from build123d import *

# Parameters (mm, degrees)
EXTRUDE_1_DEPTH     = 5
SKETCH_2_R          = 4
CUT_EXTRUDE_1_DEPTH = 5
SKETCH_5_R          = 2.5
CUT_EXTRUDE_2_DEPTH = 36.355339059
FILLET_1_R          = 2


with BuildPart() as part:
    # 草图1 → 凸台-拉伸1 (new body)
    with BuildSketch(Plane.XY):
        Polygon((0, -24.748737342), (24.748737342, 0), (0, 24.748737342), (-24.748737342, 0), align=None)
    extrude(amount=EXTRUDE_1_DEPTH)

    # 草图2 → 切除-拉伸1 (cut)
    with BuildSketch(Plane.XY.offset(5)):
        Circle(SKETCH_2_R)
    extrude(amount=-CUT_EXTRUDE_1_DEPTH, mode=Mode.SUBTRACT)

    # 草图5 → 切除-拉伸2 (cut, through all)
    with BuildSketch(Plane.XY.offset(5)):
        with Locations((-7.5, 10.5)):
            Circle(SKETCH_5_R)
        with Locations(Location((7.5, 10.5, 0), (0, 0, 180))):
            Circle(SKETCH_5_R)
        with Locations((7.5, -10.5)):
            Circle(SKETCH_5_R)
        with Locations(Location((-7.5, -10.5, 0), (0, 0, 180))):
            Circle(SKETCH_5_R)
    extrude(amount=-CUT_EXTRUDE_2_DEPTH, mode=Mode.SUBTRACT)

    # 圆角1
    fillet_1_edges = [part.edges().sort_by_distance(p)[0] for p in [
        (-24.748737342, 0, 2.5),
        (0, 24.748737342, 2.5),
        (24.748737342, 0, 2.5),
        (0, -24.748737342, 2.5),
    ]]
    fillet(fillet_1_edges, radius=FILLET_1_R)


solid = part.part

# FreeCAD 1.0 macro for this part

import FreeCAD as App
import Part
import Sketcher

V = App.Vector


def edges_at(feature, points):
    """Names of the edges that pass closest to the given points."""
    edges = feature.Shape.Edges
    near = lambda p: min(range(len(edges)), key=lambda i: edges[i].distToShape(Part.Vertex(*p))[0])
    return sorted({f"Edge{near(p) + 1}" for p in points})


def add_polygon(sketch, points):
    """Adds a closed chain of lines whose ends are joined by coincident constraints."""
    first, n = sketch.GeometryCount, len(points)
    for a, b in zip(points, points[1:] + points[:1]):
        sketch.addGeometry(Part.LineSegment(App.Vector(*a, 0), App.Vector(*b, 0)), False)
    for i in range(n):
        sketch.addConstraint(Sketcher.Constraint("Coincident", first + i, 2, first + (i + 1) % n, 1))

doc = App.newDocument("Part")
body = doc.addObject("PartDesign::Body", "Body")

# Sketch on XY plane
sketch1 = doc.addObject("Sketcher::SketchObject", "Sketch")
body.addObject(sketch1)
sketch1.AttachmentSupport = (doc.XY_Plane, [""])
sketch1.MapMode = "FlatFace"
add_polygon(sketch1, [(0, -25), (25, 0), (0, 25), (-25, 0)])  # lines 0-3
sketch1.addConstraint([
    Sketcher.Constraint("Symmetric", 0, 2, 2, 2, -1, 1),
    Sketcher.Constraint("Symmetric", 1, 2, 3, 2, -1, 1),
    Sketcher.Constraint("PointOnObject", 0, 2, -1),
    Sketcher.Constraint("PointOnObject", 1, 2, -2),
    Sketcher.Constraint("Perpendicular", 0, 1),
    Sketcher.Constraint("Distance", 0, 35.0),
])
pad1 = doc.addObject("PartDesign::Pad", "Pad")
body.addObject(pad1)
pad1.Profile = sketch1
pad1.Length = 5

# Sketch on XY plane
sketch2 = doc.addObject("Sketcher::SketchObject", "Sketch001")
body.addObject(sketch2)
sketch2.AttachmentSupport = (doc.XY_Plane, [""])
sketch2.MapMode = "FlatFace"
sketch2.AttachmentOffset = App.Placement(V(0, 0, 5), App.Rotation())
sketch2.addGeometry(Part.Circle(V(0, 0, 0), V(0, 0, 1), 4), False)
sketch2.addConstraint([
    Sketcher.Constraint("Coincident", 0, 3, -1, 1),
    Sketcher.Constraint("Diameter", 0, 8.0),
])
pocket1 = doc.addObject("PartDesign::Pocket", "Pocket")
body.addObject(pocket1)
pocket1.Profile = sketch2
pocket1.Length = 5

# Sketch on XY plane
sketch3 = doc.addObject("Sketcher::SketchObject", "Sketch002")
body.addObject(sketch3)
sketch3.AttachmentSupport = (doc.XY_Plane, [""])
sketch3.MapMode = "FlatFace"
sketch3.AttachmentOffset = App.Placement(V(0, 0, 5), App.Rotation())
sketch3.addGeometry([
    Part.Circle(V(-7.5, 10.5, 0), V(0, 0, 1), 2.5),
    Part.Circle(V(7.5, 10.5, 0), V(0, 0, 1), 2.5),
    Part.Circle(V(7.5, -10.5, 0), V(0, 0, 1), 2.5),
    Part.Circle(V(-7.5, -10.5, 0), V(0, 0, 1), 2.5),
], False)
sketch3.addConstraint([
    Sketcher.Constraint("Equal", 0, 1),
    Sketcher.Constraint("Equal", 1, 2),
    Sketcher.Constraint("Equal", 2, 3),
    Sketcher.Constraint("Symmetric", 0, 3, 2, 3, -1, 1),
    Sketcher.Constraint("Symmetric", 1, 3, 3, 3, -1, 1),
    Sketcher.Constraint("Symmetric", 0, 3, 1, 3, -2),
    Sketcher.Constraint("Diameter", 0, 5.0),
    Sketcher.Constraint("DistanceX", 0, 3, 1, 3, 15.0),
    Sketcher.Constraint("DistanceY", 2, 3, 1, 3, 21.0),
])
pocket2 = doc.addObject("PartDesign::Pocket", "Pocket001")
body.addObject(pocket2)
pocket2.Profile = sketch3
pocket2.Type = "ThroughAll"
doc.recompute()

fillet = doc.addObject("PartDesign::Fillet", "Fillet")
body.addObject(fillet)
fillet.Base = (pocket2, edges_at(pocket2, [
    (-24.749, 0, 2.5),
    (0, 24.749, 2.5),
    (24.749, 0, 2.5),
    (0, -24.749, 2.5),
]))
fillet.Radius = 2

doc.recompute()
